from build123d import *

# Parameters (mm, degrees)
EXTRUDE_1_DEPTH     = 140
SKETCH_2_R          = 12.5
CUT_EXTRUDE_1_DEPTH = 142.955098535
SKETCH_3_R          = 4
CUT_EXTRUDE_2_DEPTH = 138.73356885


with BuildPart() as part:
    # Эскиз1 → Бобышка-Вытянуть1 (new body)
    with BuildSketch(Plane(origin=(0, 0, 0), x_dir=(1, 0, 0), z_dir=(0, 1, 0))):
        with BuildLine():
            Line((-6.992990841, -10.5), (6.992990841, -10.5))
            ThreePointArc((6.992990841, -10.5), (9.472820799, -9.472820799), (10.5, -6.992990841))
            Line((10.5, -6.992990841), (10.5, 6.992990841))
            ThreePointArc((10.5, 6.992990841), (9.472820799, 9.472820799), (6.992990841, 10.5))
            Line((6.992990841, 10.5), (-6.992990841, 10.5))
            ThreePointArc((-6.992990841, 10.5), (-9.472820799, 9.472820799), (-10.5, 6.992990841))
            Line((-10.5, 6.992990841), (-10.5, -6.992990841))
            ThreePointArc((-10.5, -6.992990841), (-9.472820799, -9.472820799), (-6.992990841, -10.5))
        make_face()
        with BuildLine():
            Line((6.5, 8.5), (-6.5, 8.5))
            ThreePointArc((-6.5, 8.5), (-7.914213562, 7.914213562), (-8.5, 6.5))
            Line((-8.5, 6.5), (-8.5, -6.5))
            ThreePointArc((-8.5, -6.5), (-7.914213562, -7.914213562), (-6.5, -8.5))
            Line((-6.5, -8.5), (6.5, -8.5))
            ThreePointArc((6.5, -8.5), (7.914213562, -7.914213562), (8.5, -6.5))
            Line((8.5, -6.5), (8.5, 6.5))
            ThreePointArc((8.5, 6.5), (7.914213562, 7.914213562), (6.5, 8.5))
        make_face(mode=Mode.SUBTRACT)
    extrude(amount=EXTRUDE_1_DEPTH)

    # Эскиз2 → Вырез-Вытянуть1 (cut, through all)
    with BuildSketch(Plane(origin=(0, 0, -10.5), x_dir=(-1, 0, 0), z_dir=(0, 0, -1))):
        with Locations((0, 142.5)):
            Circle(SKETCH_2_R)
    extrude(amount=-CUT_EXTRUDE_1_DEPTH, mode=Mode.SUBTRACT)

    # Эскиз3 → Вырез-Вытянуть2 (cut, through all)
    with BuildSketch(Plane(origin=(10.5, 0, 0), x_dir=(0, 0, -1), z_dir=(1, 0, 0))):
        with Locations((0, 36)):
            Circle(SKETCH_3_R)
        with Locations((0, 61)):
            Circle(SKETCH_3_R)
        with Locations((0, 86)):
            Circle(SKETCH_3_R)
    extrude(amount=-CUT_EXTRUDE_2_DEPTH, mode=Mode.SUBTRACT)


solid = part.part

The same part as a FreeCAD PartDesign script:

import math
import FreeCAD as App
import Part
import Sketcher
from FreeCAD import Vector
Q = App.Units.Quantity

doc = App.newDocument("Part")
body = doc.addObject("PartDesign::Body", "Body")

sketch1 = doc.addObject("Sketcher::SketchObject", "Sketch")
body.addObject(sketch1)
sketch1.AttachmentSupport = (doc.XZ_Plane, [""])
sketch1.MapMode = "FlatFace"
sketch1.addGeometry(Part.LineSegment(Vector(-6.992991, 10.5, 0), Vector(6.992991, 10.5, 0)), False)
sketch1.addGeometry(Part.ArcOfCircle(Part.Circle(Vector(6.992991, 6.992991, 0), Vector(0, 0, 1), 3.507009), math.radians(0), math.radians(90)), False)
sketch1.addGeometry(Part.LineSegment(Vector(10.5, 6.992991, 0), Vector(10.5, -6.992991, 0)), False)
sketch1.addGeometry(Part.ArcOfCircle(Part.Circle(Vector(6.992991, -6.992991, 0), Vector(0, 0, 1), 3.507009), math.radians(-90), math.radians(0)), False)
sketch1.addGeometry(Part.LineSegment(Vector(6.992991, -10.5, 0), Vector(-6.992991, -10.5, 0)), False)
sketch1.addGeometry(Part.ArcOfCircle(Part.Circle(Vector(-6.992991, -6.992991, 0), Vector(0, 0, 1), 3.507009), math.radians(180), math.radians(270)), False)
sketch1.addGeometry(Part.LineSegment(Vector(-10.5, -6.992991, 0), Vector(-10.5, 6.992991, 0)), False)
sketch1.addGeometry(Part.ArcOfCircle(Part.Circle(Vector(-6.992991, 6.992991, 0), Vector(0, 0, 1), 3.507009), math.radians(90), math.radians(180)), False)
sketch1.addGeometry(Part.LineSegment(Vector(-6.5, -8.5, 0), Vector(6.5, -8.5, 0)), False)
sketch1.addGeometry(Part.ArcOfCircle(Part.Circle(Vector(6.5, -6.5, 0), Vector(0, 0, 1), 2), math.radians(-90), math.radians(0)), False)
sketch1.addGeometry(Part.LineSegment(Vector(8.5, -6.5, 0), Vector(8.5, 6.5, 0)), False)
sketch1.addGeometry(Part.ArcOfCircle(Part.Circle(Vector(6.5, 6.5, 0), Vector(0, 0, 1), 2), math.radians(0), math.radians(90)), False)
sketch1.addGeometry(Part.LineSegment(Vector(6.5, 8.5, 0), Vector(-6.5, 8.5, 0)), False)
sketch1.addGeometry(Part.ArcOfCircle(Part.Circle(Vector(-6.5, 6.5, 0), Vector(0, 0, 1), 2), math.radians(90), math.radians(180)), False)
sketch1.addGeometry(Part.LineSegment(Vector(-8.5, 6.5, 0), Vector(-8.5, -6.5, 0)), False)
sketch1.addGeometry(Part.ArcOfCircle(Part.Circle(Vector(-6.5, -6.5, 0), Vector(0, 0, 1), 2), math.radians(-180), math.radians(-90)), False)
sketch1.addConstraint(Sketcher.Constraint("Tangent", 0, 2, 1, 2))
sketch1.addConstraint(Sketcher.Constraint("Tangent", 1, 1, 2, 1))
sketch1.addConstraint(Sketcher.Constraint("Tangent", 2, 2, 3, 2))
sketch1.addConstraint(Sketcher.Constraint("Tangent", 3, 1, 4, 1))
sketch1.addConstraint(Sketcher.Constraint("Tangent", 4, 2, 5, 2))
sketch1.addConstraint(Sketcher.Constraint("Tangent", 5, 1, 6, 1))
sketch1.addConstraint(Sketcher.Constraint("Tangent", 6, 2, 7, 2))
sketch1.addConstraint(Sketcher.Constraint("Tangent", 7, 1, 0, 1))
sketch1.addConstraint(Sketcher.Constraint("Tangent", 8, 2, 9, 1))
sketch1.addConstraint(Sketcher.Constraint("Tangent", 9, 2, 10, 1))
sketch1.addConstraint(Sketcher.Constraint("Tangent", 10, 2, 11, 1))
sketch1.addConstraint(Sketcher.Constraint("Tangent", 11, 2, 12, 1))
sketch1.addConstraint(Sketcher.Constraint("Tangent", 12, 2, 13, 1))
sketch1.addConstraint(Sketcher.Constraint("Tangent", 13, 2, 14, 1))
sketch1.addConstraint(Sketcher.Constraint("Tangent", 14, 2, 15, 1))
sketch1.addConstraint(Sketcher.Constraint("Tangent", 15, 2, 8, 1))
sketch1.addConstraint(Sketcher.Constraint("Horizontal", 0))
sketch1.addConstraint(Sketcher.Constraint("Vertical", 2))
sketch1.addConstraint(Sketcher.Constraint("Horizontal", 4))
sketch1.addConstraint(Sketcher.Constraint("Vertical", 6))
sketch1.addConstraint(Sketcher.Constraint("Horizontal", 8))
sketch1.addConstraint(Sketcher.Constraint("Vertical", 10))
sketch1.addConstraint(Sketcher.Constraint("Horizontal", 12))
sketch1.addConstraint(Sketcher.Constraint("Vertical", 14))
sketch1.addConstraint(Sketcher.Constraint("Equal", 1, 3))
sketch1.addConstraint(Sketcher.Constraint("Equal", 3, 5))
sketch1.addConstraint(Sketcher.Constraint("Equal", 5, 7))
sketch1.addConstraint(Sketcher.Constraint("Equal", 9, 11))
sketch1.addConstraint(Sketcher.Constraint("Equal", 11, 13))
sketch1.addConstraint(Sketcher.Constraint("Equal", 13, 15))
sketch1.addConstraint(Sketcher.Constraint("Symmetric", 1, 3, 5, 3, -1, 1))
sketch1.addConstraint(Sketcher.Constraint("Symmetric", 9, 3, 13, 3, -1, 1))
sketch1.addConstraint(Sketcher.Constraint("Equal", 4, 2))
sketch1.addConstraint(Sketcher.Constraint("Equal", 12, 10))
sketch1.addConstraint(Sketcher.Constraint("Radius", 9, Q("2 mm")))
sketch1.addConstraint(Sketcher.Constraint("DistanceX", 8, 1, 8, 2, Q("13 mm")))
sketch1.addConstraint(Sketcher.Constraint("DistanceY", 11, 3, 0, 2, Q("4 mm")))
sketch1.addConstraint(Sketcher.Constraint("Radius", 1, Q("3.507009 mm")))
pad1 = doc.addObject("PartDesign::Pad", "Pad")
body.addObject(pad1)
pad1.Profile = sketch1
pad1.Length = 140
pad1.Reversed = True

sketch2 = doc.addObject("Sketcher::SketchObject", "Sketch001")
body.addObject(sketch2)
sketch2.AttachmentSupport = (doc.XY_Plane, [""])
sketch2.MapMode = "FlatFace"
sketch2.AttachmentOffset = App.Placement(Vector(0, 0, -10.5), App.Rotation())
sketch2.addGeometry(Part.Circle(Vector(0, 142.5, 0), Vector(0, 0, 1), 12.5), False)
sketch2.addConstraint(Sketcher.Constraint("PointOnObject", 0, 3, -2))
sketch2.addConstraint(Sketcher.Constraint("Diameter", 0, Q("25 mm")))
sketch2.addConstraint(Sketcher.Constraint("DistanceY", -1, 1, 0, 3, Q("142.5 mm")))
pocket1 = doc.addObject("PartDesign::Pocket", "Pocket")
body.addObject(pocket1)
pocket1.Profile = sketch2
pocket1.Type = "ThroughAll"
pocket1.Reversed = True

sketch3 = doc.addObject("Sketcher::SketchObject", "Sketch002")
body.addObject(sketch3)
sketch3.AttachmentSupport = (doc.YZ_Plane, [""])
sketch3.MapMode = "FlatFace"
sketch3.AttachmentOffset = App.Placement(Vector(0, 0, 10.5), App.Rotation())
sketch3.addGeometry(Part.Circle(Vector(36, 0, 0), Vector(0, 0, 1), 4), False)
sketch3.addGeometry(Part.Circle(Vector(61, 0, 0), Vector(0, 0, 1), 4), False)
sketch3.addGeometry(Part.Circle(Vector(86, 0, 0), Vector(0, 0, 1), 4), False)
sketch3.addConstraint(Sketcher.Constraint("Equal", 0, 1))
sketch3.addConstraint(Sketcher.Constraint("Equal", 1, 2))
sketch3.addConstraint(Sketcher.Constraint("PointOnObject", 0, 3, -1))
sketch3.addConstraint(Sketcher.Constraint("PointOnObject", 1, 3, -1))
sketch3.addConstraint(Sketcher.Constraint("PointOnObject", 2, 3, -1))
sketch3.addConstraint(Sketcher.Constraint("Diameter", 0, Q("8 mm")))
sketch3.addConstraint(Sketcher.Constraint("DistanceX", -1, 1, 0, 3, Q("36 mm")))
sketch3.addConstraint(Sketcher.Constraint("DistanceX", -1, 1, 1, 3, Q("61 mm")))
sketch3.addConstraint(Sketcher.Constraint("DistanceX", -1, 1, 2, 3, Q("86 mm")))
pocket2 = doc.addObject("PartDesign::Pocket", "Pocket001")
body.addObject(pocket2)
pocket2.Profile = sketch3
pocket2.Type = "ThroughAll"

doc.recompute()
